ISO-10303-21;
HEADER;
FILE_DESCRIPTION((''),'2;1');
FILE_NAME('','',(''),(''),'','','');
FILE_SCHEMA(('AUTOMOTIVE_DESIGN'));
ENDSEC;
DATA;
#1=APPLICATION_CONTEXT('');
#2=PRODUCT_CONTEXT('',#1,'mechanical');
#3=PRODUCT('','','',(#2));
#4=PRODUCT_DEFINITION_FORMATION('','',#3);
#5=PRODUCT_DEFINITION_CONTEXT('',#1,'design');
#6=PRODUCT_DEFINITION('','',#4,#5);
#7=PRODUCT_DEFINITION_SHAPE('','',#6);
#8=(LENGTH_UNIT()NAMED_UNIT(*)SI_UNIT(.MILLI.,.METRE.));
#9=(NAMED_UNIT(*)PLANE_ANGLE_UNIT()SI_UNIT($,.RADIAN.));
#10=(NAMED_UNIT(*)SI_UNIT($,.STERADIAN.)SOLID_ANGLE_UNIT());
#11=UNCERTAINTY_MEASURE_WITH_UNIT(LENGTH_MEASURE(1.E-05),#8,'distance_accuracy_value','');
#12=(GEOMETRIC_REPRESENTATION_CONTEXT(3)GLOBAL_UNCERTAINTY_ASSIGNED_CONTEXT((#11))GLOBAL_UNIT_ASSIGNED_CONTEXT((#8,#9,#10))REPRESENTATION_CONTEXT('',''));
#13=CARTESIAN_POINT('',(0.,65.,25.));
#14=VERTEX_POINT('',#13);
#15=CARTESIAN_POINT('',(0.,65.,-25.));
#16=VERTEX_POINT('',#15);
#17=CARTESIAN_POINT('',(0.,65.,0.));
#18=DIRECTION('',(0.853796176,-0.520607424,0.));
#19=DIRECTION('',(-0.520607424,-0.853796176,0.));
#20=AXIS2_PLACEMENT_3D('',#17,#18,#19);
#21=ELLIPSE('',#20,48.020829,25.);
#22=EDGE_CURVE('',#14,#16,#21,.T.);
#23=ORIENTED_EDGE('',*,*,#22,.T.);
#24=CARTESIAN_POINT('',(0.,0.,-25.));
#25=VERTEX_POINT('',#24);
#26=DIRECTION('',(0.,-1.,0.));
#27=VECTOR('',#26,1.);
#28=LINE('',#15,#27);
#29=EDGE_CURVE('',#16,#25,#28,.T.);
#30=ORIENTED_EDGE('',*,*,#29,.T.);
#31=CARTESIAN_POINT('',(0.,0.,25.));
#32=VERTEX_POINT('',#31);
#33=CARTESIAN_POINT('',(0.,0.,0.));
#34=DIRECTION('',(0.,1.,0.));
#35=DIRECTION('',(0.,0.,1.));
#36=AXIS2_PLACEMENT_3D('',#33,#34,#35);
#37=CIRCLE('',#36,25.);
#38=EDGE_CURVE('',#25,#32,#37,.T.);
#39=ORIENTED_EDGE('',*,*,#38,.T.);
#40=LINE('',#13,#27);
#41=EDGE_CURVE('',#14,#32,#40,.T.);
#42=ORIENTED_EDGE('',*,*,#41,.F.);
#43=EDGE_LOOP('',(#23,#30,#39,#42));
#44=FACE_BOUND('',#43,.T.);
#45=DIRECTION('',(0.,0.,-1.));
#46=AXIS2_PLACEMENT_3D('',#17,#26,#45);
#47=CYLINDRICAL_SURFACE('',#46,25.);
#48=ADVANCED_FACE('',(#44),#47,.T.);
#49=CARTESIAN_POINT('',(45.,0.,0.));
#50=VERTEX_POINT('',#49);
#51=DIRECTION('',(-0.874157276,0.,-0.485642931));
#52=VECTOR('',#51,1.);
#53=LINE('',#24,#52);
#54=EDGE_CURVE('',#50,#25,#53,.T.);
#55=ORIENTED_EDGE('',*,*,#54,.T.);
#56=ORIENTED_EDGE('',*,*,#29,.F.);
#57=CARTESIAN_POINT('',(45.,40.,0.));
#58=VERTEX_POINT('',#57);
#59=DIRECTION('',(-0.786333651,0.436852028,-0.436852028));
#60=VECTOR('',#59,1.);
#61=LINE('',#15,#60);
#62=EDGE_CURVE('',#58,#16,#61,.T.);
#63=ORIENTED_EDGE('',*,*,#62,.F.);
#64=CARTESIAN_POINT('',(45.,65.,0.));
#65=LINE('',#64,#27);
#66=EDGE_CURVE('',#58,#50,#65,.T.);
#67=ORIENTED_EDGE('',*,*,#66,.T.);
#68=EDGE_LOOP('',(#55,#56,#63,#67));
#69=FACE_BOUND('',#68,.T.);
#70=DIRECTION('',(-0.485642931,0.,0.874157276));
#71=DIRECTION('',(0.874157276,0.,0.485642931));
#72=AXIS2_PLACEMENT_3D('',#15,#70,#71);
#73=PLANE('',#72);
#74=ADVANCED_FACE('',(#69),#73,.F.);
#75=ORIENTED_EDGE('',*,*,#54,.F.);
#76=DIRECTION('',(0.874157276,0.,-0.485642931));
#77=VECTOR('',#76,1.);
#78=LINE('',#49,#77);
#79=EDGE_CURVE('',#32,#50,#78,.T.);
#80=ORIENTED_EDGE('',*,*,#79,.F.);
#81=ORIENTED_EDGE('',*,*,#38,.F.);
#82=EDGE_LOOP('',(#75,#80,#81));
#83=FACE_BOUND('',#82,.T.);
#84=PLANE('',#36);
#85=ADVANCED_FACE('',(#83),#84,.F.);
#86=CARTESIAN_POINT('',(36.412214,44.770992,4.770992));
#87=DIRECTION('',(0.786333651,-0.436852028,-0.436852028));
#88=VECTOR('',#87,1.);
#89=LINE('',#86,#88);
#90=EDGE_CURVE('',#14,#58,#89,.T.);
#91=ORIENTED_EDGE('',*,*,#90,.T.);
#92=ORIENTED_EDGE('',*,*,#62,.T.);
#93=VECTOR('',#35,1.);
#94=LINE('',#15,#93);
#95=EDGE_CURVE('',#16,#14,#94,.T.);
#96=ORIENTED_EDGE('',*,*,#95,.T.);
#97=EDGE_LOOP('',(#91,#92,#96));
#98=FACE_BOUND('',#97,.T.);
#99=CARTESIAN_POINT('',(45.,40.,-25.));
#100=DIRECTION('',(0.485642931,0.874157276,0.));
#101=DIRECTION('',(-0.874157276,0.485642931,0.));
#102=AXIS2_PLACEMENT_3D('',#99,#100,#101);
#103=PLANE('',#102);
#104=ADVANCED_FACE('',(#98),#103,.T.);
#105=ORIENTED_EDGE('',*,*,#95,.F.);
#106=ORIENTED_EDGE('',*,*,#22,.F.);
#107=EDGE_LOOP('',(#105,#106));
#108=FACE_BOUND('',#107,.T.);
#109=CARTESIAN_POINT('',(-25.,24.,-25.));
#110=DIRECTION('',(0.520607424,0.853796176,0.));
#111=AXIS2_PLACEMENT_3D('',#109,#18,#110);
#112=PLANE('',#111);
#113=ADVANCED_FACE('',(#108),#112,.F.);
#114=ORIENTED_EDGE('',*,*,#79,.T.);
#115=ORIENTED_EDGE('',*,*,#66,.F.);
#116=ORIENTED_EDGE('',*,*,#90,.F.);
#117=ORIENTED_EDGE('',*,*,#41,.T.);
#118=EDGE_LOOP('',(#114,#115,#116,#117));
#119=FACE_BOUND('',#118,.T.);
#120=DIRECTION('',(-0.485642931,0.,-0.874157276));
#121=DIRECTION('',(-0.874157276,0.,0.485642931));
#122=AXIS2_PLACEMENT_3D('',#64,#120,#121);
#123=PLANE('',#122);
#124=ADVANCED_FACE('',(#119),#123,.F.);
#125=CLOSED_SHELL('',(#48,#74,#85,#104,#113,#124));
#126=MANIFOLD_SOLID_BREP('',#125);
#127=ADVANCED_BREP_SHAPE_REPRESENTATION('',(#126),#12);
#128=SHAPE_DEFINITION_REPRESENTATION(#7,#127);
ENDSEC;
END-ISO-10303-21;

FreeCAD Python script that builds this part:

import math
import FreeCAD as App
import Part
import Sketcher

doc = App.newDocument("Part")
body = doc.addObject("PartDesign::Body", "Body")

# Sketch on XZ plane
sketch1 = doc.addObject("Sketcher::SketchObject", "Sketch")
body.addObject(sketch1)
sketch1.AttachmentSupport = (doc.XZ_Plane, [""])
sketch1.MapMode = "FlatFace"
sketch1.addGeometry(Part.LineSegment(App.Vector(45, 0, 0), App.Vector(0, -25, 0)), False)
sketch1.addGeometry(Part.ArcOfCircle(Part.Circle(App.Vector(0, 0, 0), App.Vector(0, 0, 1), 25), math.radians(90), math.radians(270)), False)
sketch1.addGeometry(Part.LineSegment(App.Vector(0, 25, 0), App.Vector(45, 0, 0)), False)
sketch1.addConstraint(Sketcher.Constraint("Coincident", 0, 2, 1, 2))
sketch1.addConstraint(Sketcher.Constraint("Coincident", 1, 1, 2, 1))
sketch1.addConstraint(Sketcher.Constraint("Coincident", 2, 2, 0, 1))
sketch1.addConstraint(Sketcher.Constraint("Coincident", 1, 3, -1, 1))
sketch1.addConstraint(Sketcher.Constraint("PointOnObject", 0, 2, -2))
sketch1.addConstraint(Sketcher.Constraint("PointOnObject", 1, 1, -2))
sketch1.addConstraint(Sketcher.Constraint("PointOnObject", 2, 2, -1))
sketch1.addConstraint(Sketcher.Constraint("Radius", 1, 25.0))
sketch1.addConstraint(Sketcher.Constraint("DistanceX", -1, 1, 2, 2, 45.0))
pad1 = doc.addObject("PartDesign::Pad", "Pad")
body.addObject(pad1)
pad1.Profile = sketch1
pad1.Length = 65
pad1.Reversed = True

# Sketch on XY plane
sketch2 = doc.addObject("Sketcher::SketchObject", "Sketch001")
body.addObject(sketch2)
sketch2.AttachmentSupport = (doc.XY_Plane, [""])
sketch2.MapMode = "FlatFace"
sketch2.addGeometry(Part.LineSegment(App.Vector(45, 65, 0), App.Vector(0, 65, 0)), False)
sketch2.addGeometry(Part.LineSegment(App.Vector(0, 65, 0), App.Vector(45, 40, 0)), False)
sketch2.addGeometry(Part.LineSegment(App.Vector(45, 40, 0), App.Vector(45, 65, 0)), False)
sketch2.addGeometry(Part.LineSegment(App.Vector(-25, 24, 0), App.Vector(0, 65, 0)), False)
sketch2.addGeometry(Part.LineSegment(App.Vector(0, 65, 0), App.Vector(-25, 65, 0)), False)
sketch2.addGeometry(Part.LineSegment(App.Vector(-25, 65, 0), App.Vector(-25, 24, 0)), False)
sketch2.addConstraint(Sketcher.Constraint("Coincident", 0, 2, 1, 1))
sketch2.addConstraint(Sketcher.Constraint("Coincident", 1, 2, 2, 1))
sketch2.addConstraint(Sketcher.Constraint("Coincident", 2, 2, 0, 1))
sketch2.addConstraint(Sketcher.Constraint("Coincident", 3, 2, 4, 1))
sketch2.addConstraint(Sketcher.Constraint("Coincident", 4, 2, 5, 1))
sketch2.addConstraint(Sketcher.Constraint("Coincident", 5, 2, 3, 1))
sketch2.addConstraint(Sketcher.Constraint("Horizontal", 0))
sketch2.addConstraint(Sketcher.Constraint("Vertical", 2))
sketch2.addConstraint(Sketcher.Constraint("Horizontal", 4))
sketch2.addConstraint(Sketcher.Constraint("Vertical", 5))
sketch2.addConstraint(Sketcher.Constraint("Coincident", 3, 2, 0, 2))
sketch2.addConstraint(Sketcher.Constraint("PointOnObject", 0, 2, -2))
sketch2.addConstraint(Sketcher.Constraint("Equal", 4, 2))
sketch2.addConstraint(Sketcher.Constraint("DistanceX", 0, 2, 0, 1, 45.0))
sketch2.addConstraint(Sketcher.Constraint("DistanceX", 4, 2, 4, 1, 25.0))
sketch2.addConstraint(Sketcher.Constraint("DistanceY", 5, 2, 5, 1, 41.0))
sketch2.addConstraint(Sketcher.Constraint("DistanceY", -1, 1, 0, 2, 65.0))
pocket1 = doc.addObject("PartDesign::Pocket", "Pocket")
body.addObject(pocket1)
pocket1.Profile = sketch2
pocket1.Length = 50
pocket1.Midplane = True

doc.recompute()
